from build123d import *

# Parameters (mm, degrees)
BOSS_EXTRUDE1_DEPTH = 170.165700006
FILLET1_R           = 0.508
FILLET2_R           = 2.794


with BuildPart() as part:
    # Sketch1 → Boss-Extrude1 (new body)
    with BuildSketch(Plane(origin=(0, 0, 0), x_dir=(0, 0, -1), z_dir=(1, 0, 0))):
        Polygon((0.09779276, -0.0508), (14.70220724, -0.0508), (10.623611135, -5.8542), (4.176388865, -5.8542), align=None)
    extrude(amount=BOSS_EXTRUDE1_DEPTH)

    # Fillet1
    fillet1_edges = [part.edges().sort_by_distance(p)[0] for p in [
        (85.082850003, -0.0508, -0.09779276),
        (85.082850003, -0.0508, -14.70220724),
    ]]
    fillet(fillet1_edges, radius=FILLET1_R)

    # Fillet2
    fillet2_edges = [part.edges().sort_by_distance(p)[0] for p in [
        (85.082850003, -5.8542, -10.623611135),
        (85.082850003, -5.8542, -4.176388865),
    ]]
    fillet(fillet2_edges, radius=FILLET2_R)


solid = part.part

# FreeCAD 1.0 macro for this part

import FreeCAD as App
import Part
import Sketcher
Q = App.Units.Quantity


def edges_at(feature, points):
    """Names of the edges that pass closest to the given points."""
    edges = feature.Shape.Edges
    near = lambda p: min(range(len(edges)), key=lambda i: edges[i].distToShape(Part.Vertex(*p))[0])
    return sorted({f"Edge{near(p) + 1}" for p in points})


def add_polygon(sketch, points):
    """Adds a closed chain of lines whose ends are joined by coincident constraints."""
    first, n = sketch.GeometryCount, len(points)
    for a, b in zip(points, points[1:] + points[:1]):
        sketch.addGeometry(Part.LineSegment(App.Vector(*a, 0), App.Vector(*b, 0)), False)
    for i in range(n):
        sketch.addConstraint(Sketcher.Constraint("Coincident", first + i, 2, first + (i + 1) % n, 1))

doc = App.newDocument("Part")
params = doc.addObject("Spreadsheet::Sheet", "Params")
for row, (alias, value) in enumerate([
    ("pad1_length", "170.1657 mm"),
    ("fillet_radius", "0.02 in"),
    ("fillet2_radius", "0.11 in"),
], start=1):
    params.set(f"A{row}", alias)
    params.set(f"B{row}", "=" + value)
    params.setAlias(f"B{row}", alias)

body = doc.addObject("PartDesign::Body", "Body")

# Sketch on YZ plane
sketch1 = body.newObject("Sketcher::SketchObject", "Sketch")
sketch1.AttachmentSupport = (doc.getObject("YZ_Plane"), [""])
sketch1.MapMode = "FlatFace"
add_polygon(sketch1, [(0, -15), (0, 0), (-6, -4), (-6, -11)])  # lines 0-3
sketch1.addConstraint([
    Sketcher.Constraint("Vertical", 0),
    Sketcher.Constraint("Vertical", 2),
    Sketcher.Constraint("Equal", 1, 3),
    Sketcher.Constraint("DistanceX", 0, 2, -1, 1, Q("0.002 in")),
    Sketcher.Constraint("DistanceX", 1, 2, -1, 1, 5.8542),
    Sketcher.Constraint("DistanceY", 0, 1, 0, 2, 14.604414),
    Sketcher.Constraint("DistanceY", 2, 2, 2, 1, 6.447222),
    Sketcher.Constraint("DistanceY", 1, 2, -1, 1, 4.176389),
])
pad1 = body.newObject("PartDesign::Pad", "Pad")
pad1.Profile = sketch1
pad1.setExpression("Length", "Params.pad1_length")
doc.recompute()

fillet = body.newObject("PartDesign::Fillet", "Fillet")
fillet.Base = (pad1, edges_at(pad1, [(85.083, -0.051, -0.098), (85.083, -0.051, -14.702)]))
fillet.setExpression("Radius", "Params.fillet_radius")
doc.recompute()

fillet2 = body.newObject("PartDesign::Fillet", "Fillet001")
fillet2.Base = (fillet, edges_at(fillet, [(85.083, -5.854, -10.624), (85.083, -5.854, -4.176)]))
fillet2.setExpression("Radius", "Params.fillet2_radius")

doc.recompute()
